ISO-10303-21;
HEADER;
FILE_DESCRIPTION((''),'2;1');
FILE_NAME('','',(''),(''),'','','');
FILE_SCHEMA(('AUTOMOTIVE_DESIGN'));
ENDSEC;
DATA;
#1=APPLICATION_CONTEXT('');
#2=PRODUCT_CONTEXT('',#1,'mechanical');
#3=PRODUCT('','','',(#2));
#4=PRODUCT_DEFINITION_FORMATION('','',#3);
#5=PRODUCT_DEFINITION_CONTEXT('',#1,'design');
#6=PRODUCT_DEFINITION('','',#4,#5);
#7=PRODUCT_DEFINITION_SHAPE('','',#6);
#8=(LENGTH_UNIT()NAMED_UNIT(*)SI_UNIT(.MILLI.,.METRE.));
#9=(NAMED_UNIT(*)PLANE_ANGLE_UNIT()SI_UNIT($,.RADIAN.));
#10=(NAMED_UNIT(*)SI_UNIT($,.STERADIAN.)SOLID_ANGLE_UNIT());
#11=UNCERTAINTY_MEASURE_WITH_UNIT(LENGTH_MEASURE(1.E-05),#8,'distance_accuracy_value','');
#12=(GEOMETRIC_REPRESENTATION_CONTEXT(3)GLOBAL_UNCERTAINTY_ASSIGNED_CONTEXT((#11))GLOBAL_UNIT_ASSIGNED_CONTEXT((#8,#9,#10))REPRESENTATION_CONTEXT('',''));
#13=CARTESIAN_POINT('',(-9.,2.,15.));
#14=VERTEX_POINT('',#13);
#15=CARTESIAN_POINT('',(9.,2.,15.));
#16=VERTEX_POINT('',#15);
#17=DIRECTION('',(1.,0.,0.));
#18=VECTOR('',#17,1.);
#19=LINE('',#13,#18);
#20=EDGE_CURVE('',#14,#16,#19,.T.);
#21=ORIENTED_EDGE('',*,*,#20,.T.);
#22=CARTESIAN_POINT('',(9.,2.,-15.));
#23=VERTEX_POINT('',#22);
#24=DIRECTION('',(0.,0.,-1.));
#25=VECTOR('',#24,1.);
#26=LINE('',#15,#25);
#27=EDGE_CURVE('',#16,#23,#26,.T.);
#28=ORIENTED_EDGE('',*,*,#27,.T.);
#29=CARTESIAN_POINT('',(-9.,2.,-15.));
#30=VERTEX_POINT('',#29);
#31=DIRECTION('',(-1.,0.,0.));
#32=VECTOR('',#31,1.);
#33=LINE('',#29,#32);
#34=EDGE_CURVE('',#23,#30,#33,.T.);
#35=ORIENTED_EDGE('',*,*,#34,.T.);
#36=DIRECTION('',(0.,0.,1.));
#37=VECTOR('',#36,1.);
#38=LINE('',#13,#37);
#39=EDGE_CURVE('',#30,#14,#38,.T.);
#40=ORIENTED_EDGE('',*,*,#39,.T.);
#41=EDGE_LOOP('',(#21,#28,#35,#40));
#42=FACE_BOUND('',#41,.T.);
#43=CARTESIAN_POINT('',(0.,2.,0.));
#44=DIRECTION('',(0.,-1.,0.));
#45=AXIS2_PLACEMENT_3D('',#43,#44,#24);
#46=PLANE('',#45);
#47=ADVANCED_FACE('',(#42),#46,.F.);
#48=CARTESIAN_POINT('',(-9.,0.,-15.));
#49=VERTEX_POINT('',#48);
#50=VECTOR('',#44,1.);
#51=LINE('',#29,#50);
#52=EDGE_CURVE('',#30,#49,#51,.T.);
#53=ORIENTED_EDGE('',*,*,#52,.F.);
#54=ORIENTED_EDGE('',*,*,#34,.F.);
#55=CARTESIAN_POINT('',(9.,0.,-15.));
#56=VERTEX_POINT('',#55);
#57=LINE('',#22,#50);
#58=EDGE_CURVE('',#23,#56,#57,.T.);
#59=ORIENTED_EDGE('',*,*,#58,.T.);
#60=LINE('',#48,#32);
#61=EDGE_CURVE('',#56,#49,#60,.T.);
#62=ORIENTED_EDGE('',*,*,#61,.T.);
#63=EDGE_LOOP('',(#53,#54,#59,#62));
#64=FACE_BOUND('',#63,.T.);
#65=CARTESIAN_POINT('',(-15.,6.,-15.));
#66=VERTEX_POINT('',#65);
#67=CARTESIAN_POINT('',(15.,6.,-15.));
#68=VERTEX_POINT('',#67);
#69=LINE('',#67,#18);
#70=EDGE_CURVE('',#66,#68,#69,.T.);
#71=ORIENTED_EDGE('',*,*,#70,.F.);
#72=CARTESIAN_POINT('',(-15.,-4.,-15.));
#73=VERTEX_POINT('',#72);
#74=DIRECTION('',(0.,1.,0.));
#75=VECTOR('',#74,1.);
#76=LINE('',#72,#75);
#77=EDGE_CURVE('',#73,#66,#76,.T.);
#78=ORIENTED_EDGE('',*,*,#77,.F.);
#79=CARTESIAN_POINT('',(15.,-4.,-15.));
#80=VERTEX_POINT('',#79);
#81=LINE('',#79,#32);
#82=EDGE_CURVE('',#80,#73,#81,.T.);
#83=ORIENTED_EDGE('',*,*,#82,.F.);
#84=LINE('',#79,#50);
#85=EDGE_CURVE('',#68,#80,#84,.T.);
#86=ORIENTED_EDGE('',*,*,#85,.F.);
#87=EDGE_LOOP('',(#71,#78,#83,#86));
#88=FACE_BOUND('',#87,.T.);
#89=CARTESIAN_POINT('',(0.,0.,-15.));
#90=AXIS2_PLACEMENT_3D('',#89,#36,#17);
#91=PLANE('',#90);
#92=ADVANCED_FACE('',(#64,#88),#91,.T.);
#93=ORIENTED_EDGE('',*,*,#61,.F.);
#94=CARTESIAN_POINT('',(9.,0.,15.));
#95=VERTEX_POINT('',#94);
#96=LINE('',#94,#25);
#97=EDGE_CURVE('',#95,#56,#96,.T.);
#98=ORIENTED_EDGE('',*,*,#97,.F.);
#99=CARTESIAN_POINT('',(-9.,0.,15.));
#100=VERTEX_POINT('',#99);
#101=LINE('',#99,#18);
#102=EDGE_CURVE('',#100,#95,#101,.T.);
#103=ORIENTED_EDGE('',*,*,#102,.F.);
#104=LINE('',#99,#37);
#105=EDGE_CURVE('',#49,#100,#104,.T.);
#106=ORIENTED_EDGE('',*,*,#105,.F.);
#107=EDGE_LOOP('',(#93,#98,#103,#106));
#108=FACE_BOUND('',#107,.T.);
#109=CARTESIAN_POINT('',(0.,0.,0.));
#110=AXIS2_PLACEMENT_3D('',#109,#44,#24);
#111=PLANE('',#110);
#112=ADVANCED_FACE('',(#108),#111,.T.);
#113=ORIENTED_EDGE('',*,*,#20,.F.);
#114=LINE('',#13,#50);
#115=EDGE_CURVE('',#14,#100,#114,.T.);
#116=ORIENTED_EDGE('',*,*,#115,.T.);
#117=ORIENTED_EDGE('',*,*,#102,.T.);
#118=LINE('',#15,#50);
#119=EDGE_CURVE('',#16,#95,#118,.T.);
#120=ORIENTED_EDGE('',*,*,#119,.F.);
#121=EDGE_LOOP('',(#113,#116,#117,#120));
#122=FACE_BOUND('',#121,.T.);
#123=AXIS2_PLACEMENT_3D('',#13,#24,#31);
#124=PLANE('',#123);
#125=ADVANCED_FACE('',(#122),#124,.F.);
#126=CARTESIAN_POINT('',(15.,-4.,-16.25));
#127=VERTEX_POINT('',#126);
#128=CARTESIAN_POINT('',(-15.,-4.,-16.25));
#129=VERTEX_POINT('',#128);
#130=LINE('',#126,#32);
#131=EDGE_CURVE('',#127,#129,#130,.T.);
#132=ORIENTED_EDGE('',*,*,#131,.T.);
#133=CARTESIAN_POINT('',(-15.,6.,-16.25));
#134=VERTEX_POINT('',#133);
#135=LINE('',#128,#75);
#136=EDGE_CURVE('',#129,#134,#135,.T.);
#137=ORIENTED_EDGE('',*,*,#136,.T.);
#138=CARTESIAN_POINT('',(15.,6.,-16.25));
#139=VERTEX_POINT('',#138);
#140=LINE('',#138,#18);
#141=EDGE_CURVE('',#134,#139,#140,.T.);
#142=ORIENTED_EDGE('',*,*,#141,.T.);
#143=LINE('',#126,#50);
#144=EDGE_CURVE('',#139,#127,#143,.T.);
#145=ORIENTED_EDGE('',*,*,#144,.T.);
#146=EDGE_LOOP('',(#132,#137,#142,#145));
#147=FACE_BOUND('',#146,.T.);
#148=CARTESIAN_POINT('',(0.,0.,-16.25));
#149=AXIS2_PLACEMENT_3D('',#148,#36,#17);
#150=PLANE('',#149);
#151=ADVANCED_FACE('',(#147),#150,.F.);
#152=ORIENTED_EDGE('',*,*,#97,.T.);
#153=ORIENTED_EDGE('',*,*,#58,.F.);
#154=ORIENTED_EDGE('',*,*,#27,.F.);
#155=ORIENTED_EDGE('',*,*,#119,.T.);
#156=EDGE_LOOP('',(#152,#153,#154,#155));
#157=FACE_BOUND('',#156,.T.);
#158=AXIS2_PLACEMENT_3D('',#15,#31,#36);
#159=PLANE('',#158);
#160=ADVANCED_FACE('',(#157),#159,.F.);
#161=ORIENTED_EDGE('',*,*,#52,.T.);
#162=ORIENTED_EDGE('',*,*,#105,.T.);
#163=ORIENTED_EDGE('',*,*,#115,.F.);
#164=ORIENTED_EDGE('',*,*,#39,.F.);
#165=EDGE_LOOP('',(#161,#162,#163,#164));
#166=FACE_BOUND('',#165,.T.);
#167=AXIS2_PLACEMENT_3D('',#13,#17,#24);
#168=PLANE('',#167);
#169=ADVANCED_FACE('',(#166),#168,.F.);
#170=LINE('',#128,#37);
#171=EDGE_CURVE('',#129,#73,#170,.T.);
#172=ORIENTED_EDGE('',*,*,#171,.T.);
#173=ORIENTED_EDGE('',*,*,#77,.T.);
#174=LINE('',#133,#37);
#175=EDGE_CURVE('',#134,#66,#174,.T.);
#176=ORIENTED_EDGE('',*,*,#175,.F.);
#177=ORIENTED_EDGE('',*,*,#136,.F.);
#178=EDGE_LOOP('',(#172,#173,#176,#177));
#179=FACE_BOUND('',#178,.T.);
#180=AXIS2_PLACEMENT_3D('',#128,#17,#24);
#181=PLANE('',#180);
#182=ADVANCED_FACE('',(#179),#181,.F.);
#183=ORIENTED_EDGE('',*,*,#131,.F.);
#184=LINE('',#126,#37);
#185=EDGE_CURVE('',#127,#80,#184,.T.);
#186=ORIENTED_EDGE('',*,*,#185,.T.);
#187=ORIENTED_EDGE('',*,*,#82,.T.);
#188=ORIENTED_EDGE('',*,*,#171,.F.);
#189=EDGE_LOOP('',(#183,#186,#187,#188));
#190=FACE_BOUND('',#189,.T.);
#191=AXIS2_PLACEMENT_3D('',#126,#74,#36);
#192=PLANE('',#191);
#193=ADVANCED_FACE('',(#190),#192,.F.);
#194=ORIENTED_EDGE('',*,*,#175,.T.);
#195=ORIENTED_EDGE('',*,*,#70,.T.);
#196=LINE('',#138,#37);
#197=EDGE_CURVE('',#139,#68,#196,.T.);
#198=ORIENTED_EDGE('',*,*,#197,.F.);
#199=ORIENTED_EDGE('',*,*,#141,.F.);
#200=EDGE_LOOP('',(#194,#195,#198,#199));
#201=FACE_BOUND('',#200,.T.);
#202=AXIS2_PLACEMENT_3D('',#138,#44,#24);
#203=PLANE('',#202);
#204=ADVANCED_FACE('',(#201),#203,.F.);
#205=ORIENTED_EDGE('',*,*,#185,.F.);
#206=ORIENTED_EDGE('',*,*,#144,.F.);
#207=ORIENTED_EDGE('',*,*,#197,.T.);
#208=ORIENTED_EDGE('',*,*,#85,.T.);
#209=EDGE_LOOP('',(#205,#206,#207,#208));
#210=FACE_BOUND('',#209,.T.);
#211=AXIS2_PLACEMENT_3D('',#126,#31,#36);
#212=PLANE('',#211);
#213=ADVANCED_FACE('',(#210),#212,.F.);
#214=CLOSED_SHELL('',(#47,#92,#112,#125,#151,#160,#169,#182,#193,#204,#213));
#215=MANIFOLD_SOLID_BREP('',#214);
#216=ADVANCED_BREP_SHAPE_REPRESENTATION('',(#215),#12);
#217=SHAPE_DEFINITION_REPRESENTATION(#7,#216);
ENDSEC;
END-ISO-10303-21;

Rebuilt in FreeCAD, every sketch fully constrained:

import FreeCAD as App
import Part
import Sketcher

doc = App.newDocument("Part")
params = doc.addObject("Spreadsheet::Sheet", "Params")
for row, (alias, value) in enumerate([
    ("sketch1_width", "18 mm"),
    ("sketch1_height", "30 mm"),
    ("pad1_length", "2 mm"),
    ("sketch2_width", "30 mm"),
    ("sketch2_height", "10 mm"),
    ("pad2_length", "1.25 mm"),
], start=1):
    params.set(f"A{row}", alias)
    params.set(f"B{row}", "=" + value)
    params.setAlias(f"B{row}", alias)

body = doc.addObject("PartDesign::Body", "Body")

# Sketch on XZ plane
sketch1 = body.newObject("Sketcher::SketchObject", "Sketch")
sketch1.AttachmentSupport = (doc.getObject("XZ_Plane"), [""])
sketch1.MapMode = "FlatFace"
sketch1.addGeometry(Part.LineSegment(App.Vector(-9, -15, 0), App.Vector(-9, 15, 0)), False)
sketch1.addGeometry(Part.LineSegment(App.Vector(-9, 15, 0), App.Vector(9, 15, 0)), False)
sketch1.addGeometry(Part.LineSegment(App.Vector(9, 15, 0), App.Vector(9, -15, 0)), False)
sketch1.addGeometry(Part.LineSegment(App.Vector(9, -15, 0), App.Vector(-9, -15, 0)), False)
sketch1.addConstraint(Sketcher.Constraint("Coincident", 0, 2, 1, 1))
sketch1.addConstraint(Sketcher.Constraint("Coincident", 1, 2, 2, 1))
sketch1.addConstraint(Sketcher.Constraint("Coincident", 2, 2, 3, 1))
sketch1.addConstraint(Sketcher.Constraint("Coincident", 3, 2, 0, 1))
sketch1.addConstraint(Sketcher.Constraint("Vertical", 0))
sketch1.addConstraint(Sketcher.Constraint("Horizontal", 1))
sketch1.addConstraint(Sketcher.Constraint("Vertical", 2))
sketch1.addConstraint(Sketcher.Constraint("Horizontal", 3))
sketch1.addConstraint(Sketcher.Constraint("Symmetric", 0, 2, 2, 2, -1, 1))
sketch1.addConstraint(Sketcher.Constraint("DistanceX", 1, 1, 1, 2, 18.0))
sketch1.addConstraint(Sketcher.Constraint("DistanceY", 0, 1, 0, 2, 30.0))
sketch1.setExpression("Constraints[9]", "Params.sketch1_width")
sketch1.setExpression("Constraints[10]", "Params.sketch1_height")
pad1 = body.newObject("PartDesign::Pad", "Pad")
pad1.Profile = sketch1
pad1.setExpression("Length", "Params.pad1_length")
pad1.Reversed = True

# Sketch on XY plane
sketch2 = body.newObject("Sketcher::SketchObject", "Sketch001")
sketch2.AttachmentSupport = (doc.getObject("XY_Plane"), [""])
sketch2.MapMode = "FlatFace"
sketch2.AttachmentOffset = App.Placement(App.Vector(0, 0, -15), App.Rotation())
sketch2.addGeometry(Part.LineSegment(App.Vector(15, 6, 0), App.Vector(15, -4, 0)), False)
sketch2.addGeometry(Part.LineSegment(App.Vector(15, -4, 0), App.Vector(-15, -4, 0)), False)
sketch2.addGeometry(Part.LineSegment(App.Vector(-15, -4, 0), App.Vector(-15, 6, 0)), False)
sketch2.addGeometry(Part.LineSegment(App.Vector(-15, 6, 0), App.Vector(15, 6, 0)), False)
sketch2.addConstraint(Sketcher.Constraint("Coincident", 0, 2, 1, 1))
sketch2.addConstraint(Sketcher.Constraint("Coincident", 1, 2, 2, 1))
sketch2.addConstraint(Sketcher.Constraint("Coincident", 2, 2, 3, 1))
sketch2.addConstraint(Sketcher.Constraint("Coincident", 3, 2, 0, 1))
sketch2.addConstraint(Sketcher.Constraint("Vertical", 0))
sketch2.addConstraint(Sketcher.Constraint("Horizontal", 1))
sketch2.addConstraint(Sketcher.Constraint("Vertical", 2))
sketch2.addConstraint(Sketcher.Constraint("Horizontal", 3))
sketch2.addConstraint(Sketcher.Constraint("DistanceX", 1, 2, 1, 1, 30.0))
sketch2.addConstraint(Sketcher.Constraint("DistanceY", 0, 2, 0, 1, 10.0))
sketch2.addConstraint(Sketcher.Constraint("DistanceX", -1, 1, 0, 2, 15.0))
sketch2.addConstraint(Sketcher.Constraint("DistanceY", 0, 2, -1, 1, 4.0))
sketch2.setExpression("Constraints[8]", "Params.sketch2_width")
sketch2.setExpression("Constraints[9]", "Params.sketch2_height")
pad2 = body.newObject("PartDesign::Pad", "Pad001")
pad2.Profile = sketch2
pad2.setExpression("Length", "Params.pad2_length")
pad2.Reversed = True

doc.recompute()
